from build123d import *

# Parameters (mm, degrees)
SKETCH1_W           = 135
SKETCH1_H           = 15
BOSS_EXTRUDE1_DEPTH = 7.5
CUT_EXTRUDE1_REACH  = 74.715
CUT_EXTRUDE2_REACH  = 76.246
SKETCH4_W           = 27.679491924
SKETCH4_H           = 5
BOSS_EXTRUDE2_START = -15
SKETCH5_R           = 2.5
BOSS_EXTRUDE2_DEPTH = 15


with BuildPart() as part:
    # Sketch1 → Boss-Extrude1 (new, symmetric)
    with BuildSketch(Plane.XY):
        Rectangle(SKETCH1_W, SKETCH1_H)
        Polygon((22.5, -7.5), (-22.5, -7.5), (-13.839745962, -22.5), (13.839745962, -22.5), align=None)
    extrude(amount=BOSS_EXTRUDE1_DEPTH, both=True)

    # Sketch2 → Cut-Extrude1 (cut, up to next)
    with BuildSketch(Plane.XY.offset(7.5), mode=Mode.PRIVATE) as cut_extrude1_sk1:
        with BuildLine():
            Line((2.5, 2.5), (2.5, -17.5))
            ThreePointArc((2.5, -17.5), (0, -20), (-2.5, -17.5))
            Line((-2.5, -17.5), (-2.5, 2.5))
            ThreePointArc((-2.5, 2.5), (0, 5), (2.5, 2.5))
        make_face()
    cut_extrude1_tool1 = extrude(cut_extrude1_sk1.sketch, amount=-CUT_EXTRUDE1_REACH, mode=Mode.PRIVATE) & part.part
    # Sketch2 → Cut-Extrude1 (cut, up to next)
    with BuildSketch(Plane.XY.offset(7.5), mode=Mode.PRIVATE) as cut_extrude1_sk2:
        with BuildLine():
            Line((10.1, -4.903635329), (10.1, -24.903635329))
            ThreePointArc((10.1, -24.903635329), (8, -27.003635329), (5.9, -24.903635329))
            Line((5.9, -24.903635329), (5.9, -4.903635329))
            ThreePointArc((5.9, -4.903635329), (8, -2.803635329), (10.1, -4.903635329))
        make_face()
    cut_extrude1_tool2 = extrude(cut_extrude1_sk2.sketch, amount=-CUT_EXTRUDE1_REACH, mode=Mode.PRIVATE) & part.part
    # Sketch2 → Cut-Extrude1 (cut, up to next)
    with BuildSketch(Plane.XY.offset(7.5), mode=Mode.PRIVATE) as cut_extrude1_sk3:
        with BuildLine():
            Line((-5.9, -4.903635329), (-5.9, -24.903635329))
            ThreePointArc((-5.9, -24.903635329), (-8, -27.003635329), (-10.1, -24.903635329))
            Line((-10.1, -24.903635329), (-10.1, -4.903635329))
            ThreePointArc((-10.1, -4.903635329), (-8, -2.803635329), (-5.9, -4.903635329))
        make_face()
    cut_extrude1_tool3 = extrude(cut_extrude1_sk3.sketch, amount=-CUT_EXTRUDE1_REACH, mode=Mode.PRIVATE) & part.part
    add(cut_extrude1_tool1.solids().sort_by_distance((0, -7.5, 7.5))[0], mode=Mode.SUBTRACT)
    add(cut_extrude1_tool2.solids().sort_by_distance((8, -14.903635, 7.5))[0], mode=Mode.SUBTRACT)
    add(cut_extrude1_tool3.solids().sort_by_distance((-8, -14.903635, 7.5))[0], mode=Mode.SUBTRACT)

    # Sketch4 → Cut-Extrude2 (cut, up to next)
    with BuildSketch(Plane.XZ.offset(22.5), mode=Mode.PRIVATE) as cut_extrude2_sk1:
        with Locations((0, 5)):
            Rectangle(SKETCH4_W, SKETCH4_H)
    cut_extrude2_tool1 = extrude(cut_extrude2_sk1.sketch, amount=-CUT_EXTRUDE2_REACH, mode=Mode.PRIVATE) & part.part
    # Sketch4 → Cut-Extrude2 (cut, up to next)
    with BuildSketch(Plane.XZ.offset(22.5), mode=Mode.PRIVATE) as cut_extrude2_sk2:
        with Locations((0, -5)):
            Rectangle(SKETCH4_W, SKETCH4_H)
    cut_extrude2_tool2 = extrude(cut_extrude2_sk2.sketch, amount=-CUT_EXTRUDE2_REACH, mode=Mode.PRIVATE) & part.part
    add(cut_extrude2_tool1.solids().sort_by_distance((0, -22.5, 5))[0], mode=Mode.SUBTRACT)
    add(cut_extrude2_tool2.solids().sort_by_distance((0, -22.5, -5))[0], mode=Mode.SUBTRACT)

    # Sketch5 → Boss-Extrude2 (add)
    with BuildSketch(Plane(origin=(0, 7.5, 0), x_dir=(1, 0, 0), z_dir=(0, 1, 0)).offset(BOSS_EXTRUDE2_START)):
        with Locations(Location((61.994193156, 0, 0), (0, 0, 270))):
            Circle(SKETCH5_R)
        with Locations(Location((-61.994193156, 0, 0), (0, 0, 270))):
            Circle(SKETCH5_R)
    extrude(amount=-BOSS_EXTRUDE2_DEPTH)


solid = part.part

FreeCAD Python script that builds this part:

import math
import FreeCAD as App
import Part
import Sketcher
Q = App.Units.Quantity

doc = App.newDocument("Part")
body = doc.addObject("PartDesign::Body", "Body")

# Sketch on XY plane
sketch1 = doc.addObject("Sketcher::SketchObject", "Sketch")
body.addObject(sketch1)
sketch1.AttachmentSupport = (doc.XY_Plane, [""])
sketch1.MapMode = "FlatFace"
sketch1.addGeometry([
    Part.LineSegment(App.Vector(-68, 8, 0), App.Vector(-68, -8, 0)),  # 0
    Part.LineSegment(App.Vector(-68, -8, 0), App.Vector(-22, -8, 0)),  # 1
    Part.LineSegment(App.Vector(-22, -8, 0), App.Vector(-14, -22, 0)),  # 2
    Part.LineSegment(App.Vector(-14, -22, 0), App.Vector(14, -22, 0)),  # 3
    Part.LineSegment(App.Vector(14, -22, 0), App.Vector(22, -8, 0)),  # 4
    Part.LineSegment(App.Vector(22, -8, 0), App.Vector(68, -8, 0)),  # 5
    Part.LineSegment(App.Vector(68, -8, 0), App.Vector(68, 8, 0)),  # 6
    Part.LineSegment(App.Vector(68, 8, 0), App.Vector(-68, 8, 0)),  # 7
], False)
sketch1.addConstraint([
    Sketcher.Constraint("Coincident", 0, 2, 1, 1),
    Sketcher.Constraint("Coincident", 1, 2, 2, 1),
    Sketcher.Constraint("Coincident", 2, 2, 3, 1),
    Sketcher.Constraint("Coincident", 3, 2, 4, 1),
    Sketcher.Constraint("Coincident", 4, 2, 5, 1),
    Sketcher.Constraint("Coincident", 5, 2, 6, 1),
    Sketcher.Constraint("Coincident", 6, 2, 7, 1),
    Sketcher.Constraint("Coincident", 7, 2, 0, 1),
    Sketcher.Constraint("Vertical", 0),
    Sketcher.Constraint("Horizontal", 1),
    Sketcher.Constraint("Horizontal", 3),
    Sketcher.Constraint("Horizontal", 5),
    Sketcher.Constraint("Vertical", 6),
    Sketcher.Constraint("Horizontal", 7),
    Sketcher.Constraint("Symmetric", 0, 2, 6, 2, -1, 1),
    Sketcher.Constraint("Symmetric", 1, 2, 4, 2, -2),
    Sketcher.Constraint("Equal", 2, 4),
    Sketcher.Constraint("DistanceX", 1, 1, 1, 2, 45.0),
    Sketcher.Constraint("DistanceX", 7, 2, 7, 1, 135.0),
    Sketcher.Constraint("DistanceY", 0, 2, 0, 1, 15.0),
    Sketcher.Constraint("Angle", 2, Q("-60 deg")),
    Sketcher.Constraint("DistanceY", 2, 2, 1, 2, 15.0),
])
pad1 = doc.addObject("PartDesign::Pad", "Pad")
body.addObject(pad1)
pad1.Profile = sketch1
pad1.Length = 15
pad1.Midplane = True

# Sketch on XY plane
sketch2 = doc.addObject("Sketcher::SketchObject", "Sketch001")
body.addObject(sketch2)
sketch2.AttachmentSupport = (doc.XY_Plane, [""])
sketch2.MapMode = "FlatFace"
sketch2.AttachmentOffset = App.Placement(App.Vector(0, 0, 7.5), App.Rotation())
sketch2.addGeometry([
    Part.LineSegment(App.Vector(2.5, -17.5, 0), App.Vector(2.5, 2.5, 0)),
    Part.ArcOfCircle(Part.Circle(App.Vector(0, 2.5, 0), App.Vector(0, 0, 1), 2.5), math.radians(0), math.radians(180)),
    Part.LineSegment(App.Vector(-2.5, 2.5, 0), App.Vector(-2.5, -17.5, 0)),
    Part.ArcOfCircle(Part.Circle(App.Vector(0, -17.5, 0), App.Vector(0, 0, 1), 2.5), math.radians(180), math.radians(360)),
], False)
sketch2.addConstraint([
    Sketcher.Constraint("Tangent", 0, 2, 1, 1),
    Sketcher.Constraint("Tangent", 1, 2, 2, 1),
    Sketcher.Constraint("Tangent", 2, 2, 3, 1),
    Sketcher.Constraint("Tangent", 3, 2, 0, 1),
    Sketcher.Constraint("Vertical", 0),
    Sketcher.Constraint("Vertical", 2),
    Sketcher.Constraint("PointOnObject", 1, 3, -2),
    Sketcher.Constraint("Radius", 1, 2.5),
    Sketcher.Constraint("DistanceY", 0, 1, 0, 2, 20.0),
    Sketcher.Constraint("DistanceY", -1, 1, 1, 3, 2.5),
])
pocket1 = doc.addObject("PartDesign::Pocket", "Pocket")
body.addObject(pocket1)
pocket1.Profile = sketch2
pocket1.Type = "UpToFirst"

# Sketch on XY plane
sketch3 = doc.addObject("Sketcher::SketchObject", "Sketch002")
body.addObject(sketch3)
sketch3.AttachmentSupport = (doc.XY_Plane, [""])
sketch3.MapMode = "FlatFace"
sketch3.AttachmentOffset = App.Placement(App.Vector(0, 0, 7.5), App.Rotation())
sketch3.addGeometry([
    Part.LineSegment(App.Vector(10.1, -24.9, 0), App.Vector(10.1, -4.9, 0)),
    Part.ArcOfCircle(Part.Circle(App.Vector(8, -4.9, 0), App.Vector(0, 0, 1), 2.1), math.radians(0), math.radians(180)),
    Part.LineSegment(App.Vector(5.9, -4.9, 0), App.Vector(5.9, -24.9, 0)),
    Part.ArcOfCircle(Part.Circle(App.Vector(8, -24.9, 0), App.Vector(0, 0, 1), 2.1), math.radians(180), math.radians(360)),
], False)
sketch3.addConstraint([
    Sketcher.Constraint("Tangent", 0, 2, 1, 1),
    Sketcher.Constraint("Tangent", 1, 2, 2, 1),
    Sketcher.Constraint("Tangent", 2, 2, 3, 1),
    Sketcher.Constraint("Tangent", 3, 2, 0, 1),
    Sketcher.Constraint("Vertical", 0),
    Sketcher.Constraint("Vertical", 2),
    Sketcher.Constraint("Radius", 1, 2.1),
    Sketcher.Constraint("DistanceY", 0, 1, 0, 2, 20.0),
    Sketcher.Constraint("DistanceX", -1, 1, 1, 3, 8.0),
    Sketcher.Constraint("DistanceY", 1, 3, -1, 1, 4.903635),
])
pocket2 = doc.addObject("PartDesign::Pocket", "Pocket001")
body.addObject(pocket2)
pocket2.Profile = sketch3
pocket2.Type = "UpToFirst"

# Sketch on XY plane
sketch4 = doc.addObject("Sketcher::SketchObject", "Sketch003")
body.addObject(sketch4)
sketch4.AttachmentSupport = (doc.XY_Plane, [""])
sketch4.MapMode = "FlatFace"
sketch4.AttachmentOffset = App.Placement(App.Vector(0, 0, 7.5), App.Rotation())
sketch4.addGeometry([
    Part.LineSegment(App.Vector(-5.9, -24.9, 0), App.Vector(-5.9, -4.9, 0)),
    Part.ArcOfCircle(Part.Circle(App.Vector(-8, -4.9, 0), App.Vector(0, 0, 1), 2.1), math.radians(0), math.radians(180)),
    Part.LineSegment(App.Vector(-10.1, -4.9, 0), App.Vector(-10.1, -24.9, 0)),
    Part.ArcOfCircle(Part.Circle(App.Vector(-8, -24.9, 0), App.Vector(0, 0, 1), 2.1), math.radians(180), math.radians(360)),
], False)
sketch4.addConstraint([
    Sketcher.Constraint("Tangent", 0, 2, 1, 1),
    Sketcher.Constraint("Tangent", 1, 2, 2, 1),
    Sketcher.Constraint("Tangent", 2, 2, 3, 1),
    Sketcher.Constraint("Tangent", 3, 2, 0, 1),
    Sketcher.Constraint("Vertical", 0),
    Sketcher.Constraint("Vertical", 2),
    Sketcher.Constraint("Radius", 1, 2.1),
    Sketcher.Constraint("DistanceY", 0, 1, 0, 2, 20.0),
    Sketcher.Constraint("DistanceX", 1, 3, -1, 1, 8.0),
    Sketcher.Constraint("DistanceY", 1, 3, -1, 1, 4.903635),
])
pocket3 = doc.addObject("PartDesign::Pocket", "Pocket002")
body.addObject(pocket3)
pocket3.Profile = sketch4
pocket3.Type = "UpToFirst"

# Sketch on XZ plane
sketch5 = doc.addObject("Sketcher::SketchObject", "Sketch004")
body.addObject(sketch5)
sketch5.AttachmentSupport = (doc.XZ_Plane, [""])
sketch5.MapMode = "FlatFace"
sketch5.AttachmentOffset = App.Placement(App.Vector(0, 0, 22.5), App.Rotation())
sketch5.addGeometry([
    Part.LineSegment(App.Vector(-14, 8, 0), App.Vector(-14, 2, 0)),
    Part.LineSegment(App.Vector(-14, 2, 0), App.Vector(14, 2, 0)),
    Part.LineSegment(App.Vector(14, 2, 0), App.Vector(14, 8, 0)),
    Part.LineSegment(App.Vector(14, 8, 0), App.Vector(-14, 8, 0)),
], False)
sketch5.addConstraint([
    Sketcher.Constraint("Coincident", 0, 2, 1, 1),
    Sketcher.Constraint("Coincident", 1, 2, 2, 1),
    Sketcher.Constraint("Coincident", 2, 2, 3, 1),
    Sketcher.Constraint("Coincident", 3, 2, 0, 1),
    Sketcher.Constraint("Vertical", 0),
    Sketcher.Constraint("Horizontal", 1),
    Sketcher.Constraint("Vertical", 2),
    Sketcher.Constraint("Horizontal", 3),
    Sketcher.Constraint("DistanceY", 0, 2, 0, 1, 5.0),
    Sketcher.Constraint("DistanceY", -1, 1, 0, 2, 2.5),
    Sketcher.Constraint("DistanceX", 1, 1, 1, 2, 27.679492),
    Sketcher.Constraint("DistanceX", 0, 2, -1, 1, 13.839746),
])
pocket4 = doc.addObject("PartDesign::Pocket", "Pocket003")
body.addObject(pocket4)
pocket4.Profile = sketch5
pocket4.Type = "UpToFirst"

# Sketch on XZ plane
sketch6 = doc.addObject("Sketcher::SketchObject", "Sketch005")
body.addObject(sketch6)
sketch6.AttachmentSupport = (doc.XZ_Plane, [""])
sketch6.MapMode = "FlatFace"
sketch6.AttachmentOffset = App.Placement(App.Vector(0, 0, 22.5), App.Rotation())
sketch6.addGeometry([
    Part.LineSegment(App.Vector(-14, -2, 0), App.Vector(-14, -8, 0)),
    Part.LineSegment(App.Vector(-14, -8, 0), App.Vector(14, -8, 0)),
    Part.LineSegment(App.Vector(14, -8, 0), App.Vector(14, -2, 0)),
    Part.LineSegment(App.Vector(14, -2, 0), App.Vector(-14, -2, 0)),
], False)
sketch6.addConstraint([
    Sketcher.Constraint("Coincident", 0, 2, 1, 1),
    Sketcher.Constraint("Coincident", 1, 2, 2, 1),
    Sketcher.Constraint("Coincident", 2, 2, 3, 1),
    Sketcher.Constraint("Coincident", 3, 2, 0, 1),
    Sketcher.Constraint("Vertical", 0),
    Sketcher.Constraint("Horizontal", 1),
    Sketcher.Constraint("Vertical", 2),
    Sketcher.Constraint("Horizontal", 3),
    Sketcher.Constraint("DistanceY", 0, 2, 0, 1, 5.0),
    Sketcher.Constraint("DistanceY", 0, 2, -1, 1, 7.5),
    Sketcher.Constraint("DistanceX", 1, 1, 1, 2, 27.679492),
    Sketcher.Constraint("DistanceX", 0, 2, -1, 1, 13.839746),
])
pocket5 = doc.addObject("PartDesign::Pocket", "Pocket004")
body.addObject(pocket5)
pocket5.Profile = sketch6
pocket5.Type = "UpToFirst"

# Sketch on XZ plane
sketch7 = doc.addObject("Sketcher::SketchObject", "Sketch006")
body.addObject(sketch7)
sketch7.AttachmentSupport = (doc.XZ_Plane, [""])
sketch7.MapMode = "FlatFace"
sketch7.AttachmentOffset = App.Placement(App.Vector(0, 0, 7.5), App.Rotation())
sketch7.addGeometry([
    Part.Circle(App.Vector(62, 0, 0), App.Vector(0, 0, 1), 2.5),
    Part.Circle(App.Vector(-62, 0, 0), App.Vector(0, 0, 1), 2.5),
], False)
sketch7.addConstraint([
    Sketcher.Constraint("Equal", 0, 1),
    Sketcher.Constraint("Symmetric", 0, 3, 1, 3, -1, 1),
    Sketcher.Constraint("PointOnObject", 0, 3, -1),
    Sketcher.Constraint("Diameter", 0, 5.0),
    Sketcher.Constraint("DistanceX", -1, 1, 0, 3, 61.994193),
])
pad2 = doc.addObject("PartDesign::Pad", "Pad001")
body.addObject(pad2)
pad2.Profile = sketch7
pad2.Length = 15

doc.recompute()
